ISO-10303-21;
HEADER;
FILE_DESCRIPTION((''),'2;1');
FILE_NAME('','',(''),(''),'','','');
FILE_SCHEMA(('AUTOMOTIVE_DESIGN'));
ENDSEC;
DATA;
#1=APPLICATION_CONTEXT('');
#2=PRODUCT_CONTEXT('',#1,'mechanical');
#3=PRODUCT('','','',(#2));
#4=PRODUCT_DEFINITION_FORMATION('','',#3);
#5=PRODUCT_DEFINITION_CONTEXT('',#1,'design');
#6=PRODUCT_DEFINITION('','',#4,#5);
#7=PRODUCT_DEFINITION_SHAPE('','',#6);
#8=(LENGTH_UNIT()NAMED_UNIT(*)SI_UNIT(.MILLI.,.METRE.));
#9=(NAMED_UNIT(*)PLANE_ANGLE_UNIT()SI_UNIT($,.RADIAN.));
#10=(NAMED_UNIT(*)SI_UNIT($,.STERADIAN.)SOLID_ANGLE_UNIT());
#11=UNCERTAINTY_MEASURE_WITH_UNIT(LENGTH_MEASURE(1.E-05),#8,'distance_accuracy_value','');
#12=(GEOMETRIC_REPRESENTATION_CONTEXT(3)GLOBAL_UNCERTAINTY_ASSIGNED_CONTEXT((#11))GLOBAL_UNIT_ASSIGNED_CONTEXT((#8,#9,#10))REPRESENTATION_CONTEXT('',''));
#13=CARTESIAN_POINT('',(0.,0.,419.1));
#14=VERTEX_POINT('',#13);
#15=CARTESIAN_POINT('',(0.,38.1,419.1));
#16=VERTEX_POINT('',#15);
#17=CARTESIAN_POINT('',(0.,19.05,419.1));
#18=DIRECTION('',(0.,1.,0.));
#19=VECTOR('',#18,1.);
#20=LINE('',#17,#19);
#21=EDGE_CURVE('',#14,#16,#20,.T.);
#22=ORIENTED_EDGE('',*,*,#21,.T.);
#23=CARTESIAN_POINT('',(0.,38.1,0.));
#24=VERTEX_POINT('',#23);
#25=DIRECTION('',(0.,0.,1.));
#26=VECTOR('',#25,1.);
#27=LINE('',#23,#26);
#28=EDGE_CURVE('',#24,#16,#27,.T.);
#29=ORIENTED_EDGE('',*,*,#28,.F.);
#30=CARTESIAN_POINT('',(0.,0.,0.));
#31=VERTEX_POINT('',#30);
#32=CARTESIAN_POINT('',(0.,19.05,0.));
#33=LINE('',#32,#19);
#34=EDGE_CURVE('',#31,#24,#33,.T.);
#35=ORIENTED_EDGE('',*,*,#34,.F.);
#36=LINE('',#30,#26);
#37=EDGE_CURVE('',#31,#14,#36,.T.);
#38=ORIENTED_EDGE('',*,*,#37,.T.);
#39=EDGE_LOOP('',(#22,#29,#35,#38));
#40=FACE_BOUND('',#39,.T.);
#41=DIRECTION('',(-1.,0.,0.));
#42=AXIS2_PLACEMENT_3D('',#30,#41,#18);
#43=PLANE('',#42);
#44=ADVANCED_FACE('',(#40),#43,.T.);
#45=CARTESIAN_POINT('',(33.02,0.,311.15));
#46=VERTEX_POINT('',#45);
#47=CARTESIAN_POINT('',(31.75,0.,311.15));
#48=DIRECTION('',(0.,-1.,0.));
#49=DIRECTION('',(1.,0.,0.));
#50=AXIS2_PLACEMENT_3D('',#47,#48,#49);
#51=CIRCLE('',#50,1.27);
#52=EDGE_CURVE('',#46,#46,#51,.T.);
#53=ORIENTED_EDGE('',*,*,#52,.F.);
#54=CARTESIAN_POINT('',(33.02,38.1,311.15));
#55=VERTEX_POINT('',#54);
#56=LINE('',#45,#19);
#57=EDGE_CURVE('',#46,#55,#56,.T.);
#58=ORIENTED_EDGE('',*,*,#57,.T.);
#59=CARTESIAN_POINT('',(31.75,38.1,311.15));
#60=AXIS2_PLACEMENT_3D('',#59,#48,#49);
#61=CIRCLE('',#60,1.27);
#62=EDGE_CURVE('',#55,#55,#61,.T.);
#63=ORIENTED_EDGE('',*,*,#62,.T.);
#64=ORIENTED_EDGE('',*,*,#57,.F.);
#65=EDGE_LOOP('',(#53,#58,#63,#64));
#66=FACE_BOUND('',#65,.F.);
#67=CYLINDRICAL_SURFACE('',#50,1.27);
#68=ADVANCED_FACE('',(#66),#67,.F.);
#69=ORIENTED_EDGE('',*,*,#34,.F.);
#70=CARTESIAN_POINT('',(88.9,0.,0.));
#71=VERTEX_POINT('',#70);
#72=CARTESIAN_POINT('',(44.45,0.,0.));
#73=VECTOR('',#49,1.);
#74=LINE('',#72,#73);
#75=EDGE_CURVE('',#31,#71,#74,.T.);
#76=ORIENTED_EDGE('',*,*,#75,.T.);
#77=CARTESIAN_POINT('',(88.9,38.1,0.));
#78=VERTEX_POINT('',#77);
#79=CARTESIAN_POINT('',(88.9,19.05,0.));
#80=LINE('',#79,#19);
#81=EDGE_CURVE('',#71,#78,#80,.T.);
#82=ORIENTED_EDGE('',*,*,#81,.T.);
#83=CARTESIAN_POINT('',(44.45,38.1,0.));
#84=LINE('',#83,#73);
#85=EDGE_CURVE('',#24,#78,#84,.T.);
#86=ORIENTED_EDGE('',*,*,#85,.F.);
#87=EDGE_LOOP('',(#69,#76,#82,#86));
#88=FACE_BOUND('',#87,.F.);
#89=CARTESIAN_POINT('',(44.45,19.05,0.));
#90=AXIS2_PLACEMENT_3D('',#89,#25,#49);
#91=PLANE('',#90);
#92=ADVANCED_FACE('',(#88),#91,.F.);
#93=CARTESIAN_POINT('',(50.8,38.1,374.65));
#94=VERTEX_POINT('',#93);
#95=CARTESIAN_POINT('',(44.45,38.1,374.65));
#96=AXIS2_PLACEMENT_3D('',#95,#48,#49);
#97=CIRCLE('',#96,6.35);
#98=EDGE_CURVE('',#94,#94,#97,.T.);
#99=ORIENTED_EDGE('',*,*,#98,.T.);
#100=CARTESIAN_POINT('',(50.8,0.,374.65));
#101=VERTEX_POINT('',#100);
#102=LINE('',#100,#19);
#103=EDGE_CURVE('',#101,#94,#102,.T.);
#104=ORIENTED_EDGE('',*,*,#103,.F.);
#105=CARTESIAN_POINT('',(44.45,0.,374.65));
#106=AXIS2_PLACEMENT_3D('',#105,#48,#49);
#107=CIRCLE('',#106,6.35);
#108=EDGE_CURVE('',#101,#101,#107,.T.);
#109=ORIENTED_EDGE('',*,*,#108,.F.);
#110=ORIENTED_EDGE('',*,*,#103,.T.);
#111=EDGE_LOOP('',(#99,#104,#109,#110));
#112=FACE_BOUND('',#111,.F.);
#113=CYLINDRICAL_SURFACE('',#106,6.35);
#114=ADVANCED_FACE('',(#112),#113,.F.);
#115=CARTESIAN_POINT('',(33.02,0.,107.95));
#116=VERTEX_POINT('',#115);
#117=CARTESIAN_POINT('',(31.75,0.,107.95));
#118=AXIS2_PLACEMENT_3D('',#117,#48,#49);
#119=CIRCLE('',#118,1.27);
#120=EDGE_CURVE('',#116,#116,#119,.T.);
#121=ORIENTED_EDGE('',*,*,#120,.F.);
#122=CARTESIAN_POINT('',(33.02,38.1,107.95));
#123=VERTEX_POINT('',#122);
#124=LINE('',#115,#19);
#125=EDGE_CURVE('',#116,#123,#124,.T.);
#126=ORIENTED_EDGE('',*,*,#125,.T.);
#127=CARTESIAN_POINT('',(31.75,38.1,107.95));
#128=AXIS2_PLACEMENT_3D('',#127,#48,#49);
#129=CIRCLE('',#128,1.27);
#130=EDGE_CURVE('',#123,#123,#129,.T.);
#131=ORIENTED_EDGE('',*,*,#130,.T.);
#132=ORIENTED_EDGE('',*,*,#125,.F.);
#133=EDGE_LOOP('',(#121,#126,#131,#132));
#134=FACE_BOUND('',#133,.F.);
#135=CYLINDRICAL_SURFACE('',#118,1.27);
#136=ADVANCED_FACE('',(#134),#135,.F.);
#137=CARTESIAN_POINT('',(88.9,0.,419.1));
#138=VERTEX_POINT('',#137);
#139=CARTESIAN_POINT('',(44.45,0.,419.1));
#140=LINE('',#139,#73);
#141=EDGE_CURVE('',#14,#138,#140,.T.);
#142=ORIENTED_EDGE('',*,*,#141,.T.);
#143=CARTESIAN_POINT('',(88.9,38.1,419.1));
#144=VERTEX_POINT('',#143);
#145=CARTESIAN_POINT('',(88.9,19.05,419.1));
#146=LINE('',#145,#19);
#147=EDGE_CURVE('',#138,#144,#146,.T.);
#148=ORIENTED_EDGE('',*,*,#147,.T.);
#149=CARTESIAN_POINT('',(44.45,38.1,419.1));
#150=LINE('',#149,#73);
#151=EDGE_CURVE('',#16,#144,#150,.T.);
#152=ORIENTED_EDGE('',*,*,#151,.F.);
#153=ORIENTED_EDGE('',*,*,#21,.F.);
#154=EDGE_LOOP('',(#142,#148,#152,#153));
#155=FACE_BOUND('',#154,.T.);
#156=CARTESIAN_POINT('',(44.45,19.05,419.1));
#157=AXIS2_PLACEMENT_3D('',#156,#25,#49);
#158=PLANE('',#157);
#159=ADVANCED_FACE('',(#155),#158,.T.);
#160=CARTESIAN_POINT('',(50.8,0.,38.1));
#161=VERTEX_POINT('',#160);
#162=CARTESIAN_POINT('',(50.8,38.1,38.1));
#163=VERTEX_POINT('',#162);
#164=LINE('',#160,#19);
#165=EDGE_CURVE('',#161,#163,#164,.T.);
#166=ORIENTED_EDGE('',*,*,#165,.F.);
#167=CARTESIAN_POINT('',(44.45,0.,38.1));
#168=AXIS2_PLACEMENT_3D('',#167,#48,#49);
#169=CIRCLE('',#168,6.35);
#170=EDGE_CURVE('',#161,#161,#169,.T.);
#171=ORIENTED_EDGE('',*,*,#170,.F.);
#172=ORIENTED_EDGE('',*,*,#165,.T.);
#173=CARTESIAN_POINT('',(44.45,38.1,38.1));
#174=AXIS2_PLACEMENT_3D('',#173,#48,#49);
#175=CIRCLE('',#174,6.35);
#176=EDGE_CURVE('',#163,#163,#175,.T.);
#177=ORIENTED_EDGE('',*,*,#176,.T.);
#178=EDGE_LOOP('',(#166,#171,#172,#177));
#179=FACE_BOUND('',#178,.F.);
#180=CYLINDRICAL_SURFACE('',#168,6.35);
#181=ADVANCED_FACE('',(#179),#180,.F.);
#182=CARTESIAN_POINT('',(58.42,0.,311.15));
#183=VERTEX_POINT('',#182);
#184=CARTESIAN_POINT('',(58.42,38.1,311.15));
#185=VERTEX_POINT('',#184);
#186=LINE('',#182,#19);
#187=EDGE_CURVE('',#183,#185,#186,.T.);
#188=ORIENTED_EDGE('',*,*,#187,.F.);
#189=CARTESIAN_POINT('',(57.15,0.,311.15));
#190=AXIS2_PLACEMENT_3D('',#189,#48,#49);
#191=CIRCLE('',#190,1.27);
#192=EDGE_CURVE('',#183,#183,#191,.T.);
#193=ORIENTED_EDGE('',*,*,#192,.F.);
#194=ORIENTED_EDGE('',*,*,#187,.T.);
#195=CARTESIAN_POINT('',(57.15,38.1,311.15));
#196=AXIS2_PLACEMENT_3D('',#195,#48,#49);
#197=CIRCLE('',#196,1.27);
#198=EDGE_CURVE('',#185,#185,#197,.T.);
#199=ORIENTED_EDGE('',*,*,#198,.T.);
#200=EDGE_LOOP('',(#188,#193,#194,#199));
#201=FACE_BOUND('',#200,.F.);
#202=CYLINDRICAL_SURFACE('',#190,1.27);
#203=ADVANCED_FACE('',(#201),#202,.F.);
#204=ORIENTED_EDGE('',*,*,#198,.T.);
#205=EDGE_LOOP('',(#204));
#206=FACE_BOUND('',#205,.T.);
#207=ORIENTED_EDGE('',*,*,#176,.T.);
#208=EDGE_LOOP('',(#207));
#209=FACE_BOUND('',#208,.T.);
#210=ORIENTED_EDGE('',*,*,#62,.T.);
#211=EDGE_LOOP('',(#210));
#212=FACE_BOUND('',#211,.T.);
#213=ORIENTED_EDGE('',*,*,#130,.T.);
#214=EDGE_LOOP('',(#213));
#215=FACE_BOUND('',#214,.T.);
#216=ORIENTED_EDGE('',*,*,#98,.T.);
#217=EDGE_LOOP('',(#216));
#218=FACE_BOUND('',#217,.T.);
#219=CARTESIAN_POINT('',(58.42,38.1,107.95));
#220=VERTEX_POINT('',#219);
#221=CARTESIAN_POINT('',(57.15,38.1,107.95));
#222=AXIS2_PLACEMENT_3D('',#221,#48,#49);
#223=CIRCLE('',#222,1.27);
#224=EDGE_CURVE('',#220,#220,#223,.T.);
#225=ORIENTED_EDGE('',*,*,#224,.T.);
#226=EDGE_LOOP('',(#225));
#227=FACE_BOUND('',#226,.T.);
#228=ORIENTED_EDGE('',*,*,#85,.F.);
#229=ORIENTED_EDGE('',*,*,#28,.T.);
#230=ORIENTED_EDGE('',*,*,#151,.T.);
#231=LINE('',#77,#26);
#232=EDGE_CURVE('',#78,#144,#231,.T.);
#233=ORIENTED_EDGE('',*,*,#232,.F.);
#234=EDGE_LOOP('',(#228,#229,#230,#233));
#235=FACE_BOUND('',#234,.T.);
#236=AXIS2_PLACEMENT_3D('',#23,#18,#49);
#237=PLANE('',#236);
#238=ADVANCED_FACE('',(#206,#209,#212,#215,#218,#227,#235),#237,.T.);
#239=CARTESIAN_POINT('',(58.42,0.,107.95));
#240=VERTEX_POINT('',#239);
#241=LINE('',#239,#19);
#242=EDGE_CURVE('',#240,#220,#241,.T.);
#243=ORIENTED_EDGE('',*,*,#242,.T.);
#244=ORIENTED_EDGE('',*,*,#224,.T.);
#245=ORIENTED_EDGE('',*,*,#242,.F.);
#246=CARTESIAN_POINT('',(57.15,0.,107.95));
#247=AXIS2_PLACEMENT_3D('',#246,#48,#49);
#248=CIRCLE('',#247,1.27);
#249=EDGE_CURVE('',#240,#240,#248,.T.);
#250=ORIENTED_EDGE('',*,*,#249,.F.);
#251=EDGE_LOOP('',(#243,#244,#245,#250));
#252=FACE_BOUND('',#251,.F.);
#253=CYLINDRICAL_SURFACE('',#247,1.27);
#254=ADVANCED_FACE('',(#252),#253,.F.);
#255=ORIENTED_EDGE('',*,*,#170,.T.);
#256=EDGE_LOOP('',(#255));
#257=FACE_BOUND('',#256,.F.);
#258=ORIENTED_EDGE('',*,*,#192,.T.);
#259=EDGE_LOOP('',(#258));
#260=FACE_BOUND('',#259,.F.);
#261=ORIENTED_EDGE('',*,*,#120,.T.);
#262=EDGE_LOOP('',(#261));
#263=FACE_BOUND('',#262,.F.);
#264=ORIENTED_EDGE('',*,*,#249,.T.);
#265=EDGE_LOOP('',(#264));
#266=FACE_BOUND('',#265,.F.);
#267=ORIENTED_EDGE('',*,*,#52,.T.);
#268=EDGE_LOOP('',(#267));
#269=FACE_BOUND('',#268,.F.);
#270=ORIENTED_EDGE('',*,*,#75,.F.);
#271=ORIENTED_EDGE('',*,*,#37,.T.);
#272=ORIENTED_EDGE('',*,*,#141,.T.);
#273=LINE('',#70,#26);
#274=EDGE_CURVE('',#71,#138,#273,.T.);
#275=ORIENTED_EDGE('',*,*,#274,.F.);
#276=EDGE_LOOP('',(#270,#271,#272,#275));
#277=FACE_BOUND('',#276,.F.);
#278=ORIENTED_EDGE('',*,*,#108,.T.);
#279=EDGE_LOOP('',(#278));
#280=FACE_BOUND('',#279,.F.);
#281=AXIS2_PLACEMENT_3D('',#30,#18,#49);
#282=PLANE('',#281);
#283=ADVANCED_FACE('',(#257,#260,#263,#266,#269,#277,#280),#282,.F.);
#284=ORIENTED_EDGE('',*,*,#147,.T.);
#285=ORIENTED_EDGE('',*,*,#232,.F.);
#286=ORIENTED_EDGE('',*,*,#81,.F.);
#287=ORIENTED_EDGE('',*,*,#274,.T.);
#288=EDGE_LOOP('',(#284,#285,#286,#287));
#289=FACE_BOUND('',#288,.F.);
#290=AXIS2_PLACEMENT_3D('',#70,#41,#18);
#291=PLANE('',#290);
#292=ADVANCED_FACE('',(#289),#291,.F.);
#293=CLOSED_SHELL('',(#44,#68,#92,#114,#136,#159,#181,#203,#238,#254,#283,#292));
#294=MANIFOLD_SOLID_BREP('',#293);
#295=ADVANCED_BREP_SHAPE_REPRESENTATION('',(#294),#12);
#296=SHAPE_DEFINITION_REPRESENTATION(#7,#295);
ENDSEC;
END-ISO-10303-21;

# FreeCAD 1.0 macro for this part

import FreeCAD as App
import Part
import Sketcher
from FreeCAD import Vector
Q = App.Units.Quantity


def add_polygon(sketch, points):
    """Adds a closed chain of lines whose ends are joined by coincident constraints."""
    first, n = sketch.GeometryCount, len(points)
    for a, b in zip(points, points[1:] + points[:1]):
        sketch.addGeometry(Part.LineSegment(App.Vector(*a, 0), App.Vector(*b, 0)), False)
    for i in range(n):
        sketch.addConstraint(Sketcher.Constraint("Coincident", first + i, 2, first + (i + 1) % n, 1))

doc = App.newDocument("Part")
params = doc.addObject("Spreadsheet::Sheet", "Params")
for row, (alias, value) in enumerate([
    ("sketch1_diameter", "0.5 in"),
    ("sketch1_diameter2", "0.1 in"),
    ("pad1_length", "3 in"),
    ("sketch2_width", "3.5 in"),
    ("sketch2_height", "1.5 in"),
    ("pad2_length", "16.5 in"),
], start=1):
    params.set(f"A{row}", alias)
    params.set(f"B{row}", "=" + value)
    params.setAlias(f"B{row}", alias)

body = doc.addObject("PartDesign::Body", "Body")
body.AllowCompound = True

sketch1 = body.newObject("Sketcher::SketchObject", "Sketch")
sketch1.AttachmentSupport = (doc.getObject("XY_Plane"), [""])
sketch1.MapMode = "FlatFace"
sketch1.addGeometry([
    Part.Circle(Vector(44.5, 374.6, 0), Vector(0, 0, 1), 6.3),
    Part.Circle(Vector(44.5, 38.1, 0), Vector(0, 0, 1), 6.3),
    Part.Circle(Vector(31.8, 311.1, 0), Vector(0, 0, 1), 1.3),
    Part.Circle(Vector(57.1, 311.1, 0), Vector(0, 0, 1), 1.3),
    Part.Circle(Vector(31.8, 108, 0), Vector(0, 0, 1), 1.3),
    Part.Circle(Vector(57.1, 108, 0), Vector(0, 0, 1), 1.3),
], False)
sketch1.addConstraint([
    Sketcher.Constraint("Equal", 0, 1),
    Sketcher.Constraint("Equal", 2, 3),
    Sketcher.Constraint("Equal", 3, 4),
    Sketcher.Constraint("Equal", 4, 5),
    Sketcher.Constraint("Horizontal", 2, 3, 3, 3),
    Sketcher.Constraint("Horizontal", 4, 3, 5, 3),
    Sketcher.Constraint("Vertical", 0, 3, 1, 3),
    Sketcher.Constraint("Vertical", 2, 3, 4, 3),
    Sketcher.Constraint("Vertical", 3, 3, 5, 3),
    Sketcher.Constraint("Diameter", 0, Q("0.5 in")),
    Sketcher.Constraint("Diameter", 2, Q("0.1 in")),
    Sketcher.Constraint("DistanceX", 2, 3, 3, 3, Q("1 in")),
    Sketcher.Constraint("DistanceY", 4, 3, 2, 3, Q("8 in")),
    Sketcher.Constraint("DistanceY", -1, 1, 1, 3, Q("1.5 in")),
    Sketcher.Constraint("DistanceX", 2, 3, 0, 3, Q("0.5 in")),
    Sketcher.Constraint("DistanceY", 2, 3, 0, 3, Q("2.5 in")),
    Sketcher.Constraint("DistanceX", -1, 1, 0, 3, Q("1.75 in")),
    Sketcher.Constraint("DistanceY", -1, 1, 0, 3, Q("14.75 in")),
])
sketch1.setExpression("Constraints[9]", "Params.sketch1_diameter")
sketch1.setExpression("Constraints[10]", "Params.sketch1_diameter2")
pad1 = body.newObject("PartDesign::Pad", "Pad")
pad1.Profile = sketch1
pad1.setExpression("Length", "Params.pad1_length")
pad1.Reversed = True
body2 = doc.addObject("PartDesign::Body", "Body001")
body2.AllowCompound = True
doc.recompute()

body.Placement = App.Placement(Vector(0, 0, 0), App.Rotation(Vector(1, 0, 0), 90))
boolean = body2.newObject("PartDesign::Boolean", "Boolean")
boolean.Type = "Fuse"
boolean.addObjects([body])
body3 = doc.addObject("PartDesign::Body", "Body002")

sketch2 = body3.newObject("Sketcher::SketchObject", "Sketch001")
sketch2.AttachmentSupport = (doc.getObject("XY_Plane002"), [""])
sketch2.MapMode = "FlatFace"
add_polygon(sketch2, [(0, 38), (0, 0), (89, 0), (89, 38)])
sketch2.addConstraint([
    Sketcher.Constraint("Vertical", 0),
    Sketcher.Constraint("Horizontal", 1),
    Sketcher.Constraint("Vertical", 2),
    Sketcher.Constraint("Horizontal", 3),
    Sketcher.Constraint("Coincident", 0, 2, -1, 1),
    Sketcher.Constraint("DistanceX", 1, 1, 1, 2, Q("3.5 in")),
    Sketcher.Constraint("DistanceY", 0, 2, 0, 1, Q("1.5 in")),
])
sketch2.setExpression("Constraints[9]", "Params.sketch2_width")
sketch2.setExpression("Constraints[10]", "Params.sketch2_height")
pad2 = body3.newObject("PartDesign::Pad", "Pad001")
pad2.Profile = sketch2
pad2.setExpression("Length", "Params.pad2_length")
doc.recompute()

boolean2 = body3.newObject("PartDesign::Boolean", "Boolean001")
boolean2.Type = "Cut"
boolean2.addObjects([body2])

doc.recompute()
